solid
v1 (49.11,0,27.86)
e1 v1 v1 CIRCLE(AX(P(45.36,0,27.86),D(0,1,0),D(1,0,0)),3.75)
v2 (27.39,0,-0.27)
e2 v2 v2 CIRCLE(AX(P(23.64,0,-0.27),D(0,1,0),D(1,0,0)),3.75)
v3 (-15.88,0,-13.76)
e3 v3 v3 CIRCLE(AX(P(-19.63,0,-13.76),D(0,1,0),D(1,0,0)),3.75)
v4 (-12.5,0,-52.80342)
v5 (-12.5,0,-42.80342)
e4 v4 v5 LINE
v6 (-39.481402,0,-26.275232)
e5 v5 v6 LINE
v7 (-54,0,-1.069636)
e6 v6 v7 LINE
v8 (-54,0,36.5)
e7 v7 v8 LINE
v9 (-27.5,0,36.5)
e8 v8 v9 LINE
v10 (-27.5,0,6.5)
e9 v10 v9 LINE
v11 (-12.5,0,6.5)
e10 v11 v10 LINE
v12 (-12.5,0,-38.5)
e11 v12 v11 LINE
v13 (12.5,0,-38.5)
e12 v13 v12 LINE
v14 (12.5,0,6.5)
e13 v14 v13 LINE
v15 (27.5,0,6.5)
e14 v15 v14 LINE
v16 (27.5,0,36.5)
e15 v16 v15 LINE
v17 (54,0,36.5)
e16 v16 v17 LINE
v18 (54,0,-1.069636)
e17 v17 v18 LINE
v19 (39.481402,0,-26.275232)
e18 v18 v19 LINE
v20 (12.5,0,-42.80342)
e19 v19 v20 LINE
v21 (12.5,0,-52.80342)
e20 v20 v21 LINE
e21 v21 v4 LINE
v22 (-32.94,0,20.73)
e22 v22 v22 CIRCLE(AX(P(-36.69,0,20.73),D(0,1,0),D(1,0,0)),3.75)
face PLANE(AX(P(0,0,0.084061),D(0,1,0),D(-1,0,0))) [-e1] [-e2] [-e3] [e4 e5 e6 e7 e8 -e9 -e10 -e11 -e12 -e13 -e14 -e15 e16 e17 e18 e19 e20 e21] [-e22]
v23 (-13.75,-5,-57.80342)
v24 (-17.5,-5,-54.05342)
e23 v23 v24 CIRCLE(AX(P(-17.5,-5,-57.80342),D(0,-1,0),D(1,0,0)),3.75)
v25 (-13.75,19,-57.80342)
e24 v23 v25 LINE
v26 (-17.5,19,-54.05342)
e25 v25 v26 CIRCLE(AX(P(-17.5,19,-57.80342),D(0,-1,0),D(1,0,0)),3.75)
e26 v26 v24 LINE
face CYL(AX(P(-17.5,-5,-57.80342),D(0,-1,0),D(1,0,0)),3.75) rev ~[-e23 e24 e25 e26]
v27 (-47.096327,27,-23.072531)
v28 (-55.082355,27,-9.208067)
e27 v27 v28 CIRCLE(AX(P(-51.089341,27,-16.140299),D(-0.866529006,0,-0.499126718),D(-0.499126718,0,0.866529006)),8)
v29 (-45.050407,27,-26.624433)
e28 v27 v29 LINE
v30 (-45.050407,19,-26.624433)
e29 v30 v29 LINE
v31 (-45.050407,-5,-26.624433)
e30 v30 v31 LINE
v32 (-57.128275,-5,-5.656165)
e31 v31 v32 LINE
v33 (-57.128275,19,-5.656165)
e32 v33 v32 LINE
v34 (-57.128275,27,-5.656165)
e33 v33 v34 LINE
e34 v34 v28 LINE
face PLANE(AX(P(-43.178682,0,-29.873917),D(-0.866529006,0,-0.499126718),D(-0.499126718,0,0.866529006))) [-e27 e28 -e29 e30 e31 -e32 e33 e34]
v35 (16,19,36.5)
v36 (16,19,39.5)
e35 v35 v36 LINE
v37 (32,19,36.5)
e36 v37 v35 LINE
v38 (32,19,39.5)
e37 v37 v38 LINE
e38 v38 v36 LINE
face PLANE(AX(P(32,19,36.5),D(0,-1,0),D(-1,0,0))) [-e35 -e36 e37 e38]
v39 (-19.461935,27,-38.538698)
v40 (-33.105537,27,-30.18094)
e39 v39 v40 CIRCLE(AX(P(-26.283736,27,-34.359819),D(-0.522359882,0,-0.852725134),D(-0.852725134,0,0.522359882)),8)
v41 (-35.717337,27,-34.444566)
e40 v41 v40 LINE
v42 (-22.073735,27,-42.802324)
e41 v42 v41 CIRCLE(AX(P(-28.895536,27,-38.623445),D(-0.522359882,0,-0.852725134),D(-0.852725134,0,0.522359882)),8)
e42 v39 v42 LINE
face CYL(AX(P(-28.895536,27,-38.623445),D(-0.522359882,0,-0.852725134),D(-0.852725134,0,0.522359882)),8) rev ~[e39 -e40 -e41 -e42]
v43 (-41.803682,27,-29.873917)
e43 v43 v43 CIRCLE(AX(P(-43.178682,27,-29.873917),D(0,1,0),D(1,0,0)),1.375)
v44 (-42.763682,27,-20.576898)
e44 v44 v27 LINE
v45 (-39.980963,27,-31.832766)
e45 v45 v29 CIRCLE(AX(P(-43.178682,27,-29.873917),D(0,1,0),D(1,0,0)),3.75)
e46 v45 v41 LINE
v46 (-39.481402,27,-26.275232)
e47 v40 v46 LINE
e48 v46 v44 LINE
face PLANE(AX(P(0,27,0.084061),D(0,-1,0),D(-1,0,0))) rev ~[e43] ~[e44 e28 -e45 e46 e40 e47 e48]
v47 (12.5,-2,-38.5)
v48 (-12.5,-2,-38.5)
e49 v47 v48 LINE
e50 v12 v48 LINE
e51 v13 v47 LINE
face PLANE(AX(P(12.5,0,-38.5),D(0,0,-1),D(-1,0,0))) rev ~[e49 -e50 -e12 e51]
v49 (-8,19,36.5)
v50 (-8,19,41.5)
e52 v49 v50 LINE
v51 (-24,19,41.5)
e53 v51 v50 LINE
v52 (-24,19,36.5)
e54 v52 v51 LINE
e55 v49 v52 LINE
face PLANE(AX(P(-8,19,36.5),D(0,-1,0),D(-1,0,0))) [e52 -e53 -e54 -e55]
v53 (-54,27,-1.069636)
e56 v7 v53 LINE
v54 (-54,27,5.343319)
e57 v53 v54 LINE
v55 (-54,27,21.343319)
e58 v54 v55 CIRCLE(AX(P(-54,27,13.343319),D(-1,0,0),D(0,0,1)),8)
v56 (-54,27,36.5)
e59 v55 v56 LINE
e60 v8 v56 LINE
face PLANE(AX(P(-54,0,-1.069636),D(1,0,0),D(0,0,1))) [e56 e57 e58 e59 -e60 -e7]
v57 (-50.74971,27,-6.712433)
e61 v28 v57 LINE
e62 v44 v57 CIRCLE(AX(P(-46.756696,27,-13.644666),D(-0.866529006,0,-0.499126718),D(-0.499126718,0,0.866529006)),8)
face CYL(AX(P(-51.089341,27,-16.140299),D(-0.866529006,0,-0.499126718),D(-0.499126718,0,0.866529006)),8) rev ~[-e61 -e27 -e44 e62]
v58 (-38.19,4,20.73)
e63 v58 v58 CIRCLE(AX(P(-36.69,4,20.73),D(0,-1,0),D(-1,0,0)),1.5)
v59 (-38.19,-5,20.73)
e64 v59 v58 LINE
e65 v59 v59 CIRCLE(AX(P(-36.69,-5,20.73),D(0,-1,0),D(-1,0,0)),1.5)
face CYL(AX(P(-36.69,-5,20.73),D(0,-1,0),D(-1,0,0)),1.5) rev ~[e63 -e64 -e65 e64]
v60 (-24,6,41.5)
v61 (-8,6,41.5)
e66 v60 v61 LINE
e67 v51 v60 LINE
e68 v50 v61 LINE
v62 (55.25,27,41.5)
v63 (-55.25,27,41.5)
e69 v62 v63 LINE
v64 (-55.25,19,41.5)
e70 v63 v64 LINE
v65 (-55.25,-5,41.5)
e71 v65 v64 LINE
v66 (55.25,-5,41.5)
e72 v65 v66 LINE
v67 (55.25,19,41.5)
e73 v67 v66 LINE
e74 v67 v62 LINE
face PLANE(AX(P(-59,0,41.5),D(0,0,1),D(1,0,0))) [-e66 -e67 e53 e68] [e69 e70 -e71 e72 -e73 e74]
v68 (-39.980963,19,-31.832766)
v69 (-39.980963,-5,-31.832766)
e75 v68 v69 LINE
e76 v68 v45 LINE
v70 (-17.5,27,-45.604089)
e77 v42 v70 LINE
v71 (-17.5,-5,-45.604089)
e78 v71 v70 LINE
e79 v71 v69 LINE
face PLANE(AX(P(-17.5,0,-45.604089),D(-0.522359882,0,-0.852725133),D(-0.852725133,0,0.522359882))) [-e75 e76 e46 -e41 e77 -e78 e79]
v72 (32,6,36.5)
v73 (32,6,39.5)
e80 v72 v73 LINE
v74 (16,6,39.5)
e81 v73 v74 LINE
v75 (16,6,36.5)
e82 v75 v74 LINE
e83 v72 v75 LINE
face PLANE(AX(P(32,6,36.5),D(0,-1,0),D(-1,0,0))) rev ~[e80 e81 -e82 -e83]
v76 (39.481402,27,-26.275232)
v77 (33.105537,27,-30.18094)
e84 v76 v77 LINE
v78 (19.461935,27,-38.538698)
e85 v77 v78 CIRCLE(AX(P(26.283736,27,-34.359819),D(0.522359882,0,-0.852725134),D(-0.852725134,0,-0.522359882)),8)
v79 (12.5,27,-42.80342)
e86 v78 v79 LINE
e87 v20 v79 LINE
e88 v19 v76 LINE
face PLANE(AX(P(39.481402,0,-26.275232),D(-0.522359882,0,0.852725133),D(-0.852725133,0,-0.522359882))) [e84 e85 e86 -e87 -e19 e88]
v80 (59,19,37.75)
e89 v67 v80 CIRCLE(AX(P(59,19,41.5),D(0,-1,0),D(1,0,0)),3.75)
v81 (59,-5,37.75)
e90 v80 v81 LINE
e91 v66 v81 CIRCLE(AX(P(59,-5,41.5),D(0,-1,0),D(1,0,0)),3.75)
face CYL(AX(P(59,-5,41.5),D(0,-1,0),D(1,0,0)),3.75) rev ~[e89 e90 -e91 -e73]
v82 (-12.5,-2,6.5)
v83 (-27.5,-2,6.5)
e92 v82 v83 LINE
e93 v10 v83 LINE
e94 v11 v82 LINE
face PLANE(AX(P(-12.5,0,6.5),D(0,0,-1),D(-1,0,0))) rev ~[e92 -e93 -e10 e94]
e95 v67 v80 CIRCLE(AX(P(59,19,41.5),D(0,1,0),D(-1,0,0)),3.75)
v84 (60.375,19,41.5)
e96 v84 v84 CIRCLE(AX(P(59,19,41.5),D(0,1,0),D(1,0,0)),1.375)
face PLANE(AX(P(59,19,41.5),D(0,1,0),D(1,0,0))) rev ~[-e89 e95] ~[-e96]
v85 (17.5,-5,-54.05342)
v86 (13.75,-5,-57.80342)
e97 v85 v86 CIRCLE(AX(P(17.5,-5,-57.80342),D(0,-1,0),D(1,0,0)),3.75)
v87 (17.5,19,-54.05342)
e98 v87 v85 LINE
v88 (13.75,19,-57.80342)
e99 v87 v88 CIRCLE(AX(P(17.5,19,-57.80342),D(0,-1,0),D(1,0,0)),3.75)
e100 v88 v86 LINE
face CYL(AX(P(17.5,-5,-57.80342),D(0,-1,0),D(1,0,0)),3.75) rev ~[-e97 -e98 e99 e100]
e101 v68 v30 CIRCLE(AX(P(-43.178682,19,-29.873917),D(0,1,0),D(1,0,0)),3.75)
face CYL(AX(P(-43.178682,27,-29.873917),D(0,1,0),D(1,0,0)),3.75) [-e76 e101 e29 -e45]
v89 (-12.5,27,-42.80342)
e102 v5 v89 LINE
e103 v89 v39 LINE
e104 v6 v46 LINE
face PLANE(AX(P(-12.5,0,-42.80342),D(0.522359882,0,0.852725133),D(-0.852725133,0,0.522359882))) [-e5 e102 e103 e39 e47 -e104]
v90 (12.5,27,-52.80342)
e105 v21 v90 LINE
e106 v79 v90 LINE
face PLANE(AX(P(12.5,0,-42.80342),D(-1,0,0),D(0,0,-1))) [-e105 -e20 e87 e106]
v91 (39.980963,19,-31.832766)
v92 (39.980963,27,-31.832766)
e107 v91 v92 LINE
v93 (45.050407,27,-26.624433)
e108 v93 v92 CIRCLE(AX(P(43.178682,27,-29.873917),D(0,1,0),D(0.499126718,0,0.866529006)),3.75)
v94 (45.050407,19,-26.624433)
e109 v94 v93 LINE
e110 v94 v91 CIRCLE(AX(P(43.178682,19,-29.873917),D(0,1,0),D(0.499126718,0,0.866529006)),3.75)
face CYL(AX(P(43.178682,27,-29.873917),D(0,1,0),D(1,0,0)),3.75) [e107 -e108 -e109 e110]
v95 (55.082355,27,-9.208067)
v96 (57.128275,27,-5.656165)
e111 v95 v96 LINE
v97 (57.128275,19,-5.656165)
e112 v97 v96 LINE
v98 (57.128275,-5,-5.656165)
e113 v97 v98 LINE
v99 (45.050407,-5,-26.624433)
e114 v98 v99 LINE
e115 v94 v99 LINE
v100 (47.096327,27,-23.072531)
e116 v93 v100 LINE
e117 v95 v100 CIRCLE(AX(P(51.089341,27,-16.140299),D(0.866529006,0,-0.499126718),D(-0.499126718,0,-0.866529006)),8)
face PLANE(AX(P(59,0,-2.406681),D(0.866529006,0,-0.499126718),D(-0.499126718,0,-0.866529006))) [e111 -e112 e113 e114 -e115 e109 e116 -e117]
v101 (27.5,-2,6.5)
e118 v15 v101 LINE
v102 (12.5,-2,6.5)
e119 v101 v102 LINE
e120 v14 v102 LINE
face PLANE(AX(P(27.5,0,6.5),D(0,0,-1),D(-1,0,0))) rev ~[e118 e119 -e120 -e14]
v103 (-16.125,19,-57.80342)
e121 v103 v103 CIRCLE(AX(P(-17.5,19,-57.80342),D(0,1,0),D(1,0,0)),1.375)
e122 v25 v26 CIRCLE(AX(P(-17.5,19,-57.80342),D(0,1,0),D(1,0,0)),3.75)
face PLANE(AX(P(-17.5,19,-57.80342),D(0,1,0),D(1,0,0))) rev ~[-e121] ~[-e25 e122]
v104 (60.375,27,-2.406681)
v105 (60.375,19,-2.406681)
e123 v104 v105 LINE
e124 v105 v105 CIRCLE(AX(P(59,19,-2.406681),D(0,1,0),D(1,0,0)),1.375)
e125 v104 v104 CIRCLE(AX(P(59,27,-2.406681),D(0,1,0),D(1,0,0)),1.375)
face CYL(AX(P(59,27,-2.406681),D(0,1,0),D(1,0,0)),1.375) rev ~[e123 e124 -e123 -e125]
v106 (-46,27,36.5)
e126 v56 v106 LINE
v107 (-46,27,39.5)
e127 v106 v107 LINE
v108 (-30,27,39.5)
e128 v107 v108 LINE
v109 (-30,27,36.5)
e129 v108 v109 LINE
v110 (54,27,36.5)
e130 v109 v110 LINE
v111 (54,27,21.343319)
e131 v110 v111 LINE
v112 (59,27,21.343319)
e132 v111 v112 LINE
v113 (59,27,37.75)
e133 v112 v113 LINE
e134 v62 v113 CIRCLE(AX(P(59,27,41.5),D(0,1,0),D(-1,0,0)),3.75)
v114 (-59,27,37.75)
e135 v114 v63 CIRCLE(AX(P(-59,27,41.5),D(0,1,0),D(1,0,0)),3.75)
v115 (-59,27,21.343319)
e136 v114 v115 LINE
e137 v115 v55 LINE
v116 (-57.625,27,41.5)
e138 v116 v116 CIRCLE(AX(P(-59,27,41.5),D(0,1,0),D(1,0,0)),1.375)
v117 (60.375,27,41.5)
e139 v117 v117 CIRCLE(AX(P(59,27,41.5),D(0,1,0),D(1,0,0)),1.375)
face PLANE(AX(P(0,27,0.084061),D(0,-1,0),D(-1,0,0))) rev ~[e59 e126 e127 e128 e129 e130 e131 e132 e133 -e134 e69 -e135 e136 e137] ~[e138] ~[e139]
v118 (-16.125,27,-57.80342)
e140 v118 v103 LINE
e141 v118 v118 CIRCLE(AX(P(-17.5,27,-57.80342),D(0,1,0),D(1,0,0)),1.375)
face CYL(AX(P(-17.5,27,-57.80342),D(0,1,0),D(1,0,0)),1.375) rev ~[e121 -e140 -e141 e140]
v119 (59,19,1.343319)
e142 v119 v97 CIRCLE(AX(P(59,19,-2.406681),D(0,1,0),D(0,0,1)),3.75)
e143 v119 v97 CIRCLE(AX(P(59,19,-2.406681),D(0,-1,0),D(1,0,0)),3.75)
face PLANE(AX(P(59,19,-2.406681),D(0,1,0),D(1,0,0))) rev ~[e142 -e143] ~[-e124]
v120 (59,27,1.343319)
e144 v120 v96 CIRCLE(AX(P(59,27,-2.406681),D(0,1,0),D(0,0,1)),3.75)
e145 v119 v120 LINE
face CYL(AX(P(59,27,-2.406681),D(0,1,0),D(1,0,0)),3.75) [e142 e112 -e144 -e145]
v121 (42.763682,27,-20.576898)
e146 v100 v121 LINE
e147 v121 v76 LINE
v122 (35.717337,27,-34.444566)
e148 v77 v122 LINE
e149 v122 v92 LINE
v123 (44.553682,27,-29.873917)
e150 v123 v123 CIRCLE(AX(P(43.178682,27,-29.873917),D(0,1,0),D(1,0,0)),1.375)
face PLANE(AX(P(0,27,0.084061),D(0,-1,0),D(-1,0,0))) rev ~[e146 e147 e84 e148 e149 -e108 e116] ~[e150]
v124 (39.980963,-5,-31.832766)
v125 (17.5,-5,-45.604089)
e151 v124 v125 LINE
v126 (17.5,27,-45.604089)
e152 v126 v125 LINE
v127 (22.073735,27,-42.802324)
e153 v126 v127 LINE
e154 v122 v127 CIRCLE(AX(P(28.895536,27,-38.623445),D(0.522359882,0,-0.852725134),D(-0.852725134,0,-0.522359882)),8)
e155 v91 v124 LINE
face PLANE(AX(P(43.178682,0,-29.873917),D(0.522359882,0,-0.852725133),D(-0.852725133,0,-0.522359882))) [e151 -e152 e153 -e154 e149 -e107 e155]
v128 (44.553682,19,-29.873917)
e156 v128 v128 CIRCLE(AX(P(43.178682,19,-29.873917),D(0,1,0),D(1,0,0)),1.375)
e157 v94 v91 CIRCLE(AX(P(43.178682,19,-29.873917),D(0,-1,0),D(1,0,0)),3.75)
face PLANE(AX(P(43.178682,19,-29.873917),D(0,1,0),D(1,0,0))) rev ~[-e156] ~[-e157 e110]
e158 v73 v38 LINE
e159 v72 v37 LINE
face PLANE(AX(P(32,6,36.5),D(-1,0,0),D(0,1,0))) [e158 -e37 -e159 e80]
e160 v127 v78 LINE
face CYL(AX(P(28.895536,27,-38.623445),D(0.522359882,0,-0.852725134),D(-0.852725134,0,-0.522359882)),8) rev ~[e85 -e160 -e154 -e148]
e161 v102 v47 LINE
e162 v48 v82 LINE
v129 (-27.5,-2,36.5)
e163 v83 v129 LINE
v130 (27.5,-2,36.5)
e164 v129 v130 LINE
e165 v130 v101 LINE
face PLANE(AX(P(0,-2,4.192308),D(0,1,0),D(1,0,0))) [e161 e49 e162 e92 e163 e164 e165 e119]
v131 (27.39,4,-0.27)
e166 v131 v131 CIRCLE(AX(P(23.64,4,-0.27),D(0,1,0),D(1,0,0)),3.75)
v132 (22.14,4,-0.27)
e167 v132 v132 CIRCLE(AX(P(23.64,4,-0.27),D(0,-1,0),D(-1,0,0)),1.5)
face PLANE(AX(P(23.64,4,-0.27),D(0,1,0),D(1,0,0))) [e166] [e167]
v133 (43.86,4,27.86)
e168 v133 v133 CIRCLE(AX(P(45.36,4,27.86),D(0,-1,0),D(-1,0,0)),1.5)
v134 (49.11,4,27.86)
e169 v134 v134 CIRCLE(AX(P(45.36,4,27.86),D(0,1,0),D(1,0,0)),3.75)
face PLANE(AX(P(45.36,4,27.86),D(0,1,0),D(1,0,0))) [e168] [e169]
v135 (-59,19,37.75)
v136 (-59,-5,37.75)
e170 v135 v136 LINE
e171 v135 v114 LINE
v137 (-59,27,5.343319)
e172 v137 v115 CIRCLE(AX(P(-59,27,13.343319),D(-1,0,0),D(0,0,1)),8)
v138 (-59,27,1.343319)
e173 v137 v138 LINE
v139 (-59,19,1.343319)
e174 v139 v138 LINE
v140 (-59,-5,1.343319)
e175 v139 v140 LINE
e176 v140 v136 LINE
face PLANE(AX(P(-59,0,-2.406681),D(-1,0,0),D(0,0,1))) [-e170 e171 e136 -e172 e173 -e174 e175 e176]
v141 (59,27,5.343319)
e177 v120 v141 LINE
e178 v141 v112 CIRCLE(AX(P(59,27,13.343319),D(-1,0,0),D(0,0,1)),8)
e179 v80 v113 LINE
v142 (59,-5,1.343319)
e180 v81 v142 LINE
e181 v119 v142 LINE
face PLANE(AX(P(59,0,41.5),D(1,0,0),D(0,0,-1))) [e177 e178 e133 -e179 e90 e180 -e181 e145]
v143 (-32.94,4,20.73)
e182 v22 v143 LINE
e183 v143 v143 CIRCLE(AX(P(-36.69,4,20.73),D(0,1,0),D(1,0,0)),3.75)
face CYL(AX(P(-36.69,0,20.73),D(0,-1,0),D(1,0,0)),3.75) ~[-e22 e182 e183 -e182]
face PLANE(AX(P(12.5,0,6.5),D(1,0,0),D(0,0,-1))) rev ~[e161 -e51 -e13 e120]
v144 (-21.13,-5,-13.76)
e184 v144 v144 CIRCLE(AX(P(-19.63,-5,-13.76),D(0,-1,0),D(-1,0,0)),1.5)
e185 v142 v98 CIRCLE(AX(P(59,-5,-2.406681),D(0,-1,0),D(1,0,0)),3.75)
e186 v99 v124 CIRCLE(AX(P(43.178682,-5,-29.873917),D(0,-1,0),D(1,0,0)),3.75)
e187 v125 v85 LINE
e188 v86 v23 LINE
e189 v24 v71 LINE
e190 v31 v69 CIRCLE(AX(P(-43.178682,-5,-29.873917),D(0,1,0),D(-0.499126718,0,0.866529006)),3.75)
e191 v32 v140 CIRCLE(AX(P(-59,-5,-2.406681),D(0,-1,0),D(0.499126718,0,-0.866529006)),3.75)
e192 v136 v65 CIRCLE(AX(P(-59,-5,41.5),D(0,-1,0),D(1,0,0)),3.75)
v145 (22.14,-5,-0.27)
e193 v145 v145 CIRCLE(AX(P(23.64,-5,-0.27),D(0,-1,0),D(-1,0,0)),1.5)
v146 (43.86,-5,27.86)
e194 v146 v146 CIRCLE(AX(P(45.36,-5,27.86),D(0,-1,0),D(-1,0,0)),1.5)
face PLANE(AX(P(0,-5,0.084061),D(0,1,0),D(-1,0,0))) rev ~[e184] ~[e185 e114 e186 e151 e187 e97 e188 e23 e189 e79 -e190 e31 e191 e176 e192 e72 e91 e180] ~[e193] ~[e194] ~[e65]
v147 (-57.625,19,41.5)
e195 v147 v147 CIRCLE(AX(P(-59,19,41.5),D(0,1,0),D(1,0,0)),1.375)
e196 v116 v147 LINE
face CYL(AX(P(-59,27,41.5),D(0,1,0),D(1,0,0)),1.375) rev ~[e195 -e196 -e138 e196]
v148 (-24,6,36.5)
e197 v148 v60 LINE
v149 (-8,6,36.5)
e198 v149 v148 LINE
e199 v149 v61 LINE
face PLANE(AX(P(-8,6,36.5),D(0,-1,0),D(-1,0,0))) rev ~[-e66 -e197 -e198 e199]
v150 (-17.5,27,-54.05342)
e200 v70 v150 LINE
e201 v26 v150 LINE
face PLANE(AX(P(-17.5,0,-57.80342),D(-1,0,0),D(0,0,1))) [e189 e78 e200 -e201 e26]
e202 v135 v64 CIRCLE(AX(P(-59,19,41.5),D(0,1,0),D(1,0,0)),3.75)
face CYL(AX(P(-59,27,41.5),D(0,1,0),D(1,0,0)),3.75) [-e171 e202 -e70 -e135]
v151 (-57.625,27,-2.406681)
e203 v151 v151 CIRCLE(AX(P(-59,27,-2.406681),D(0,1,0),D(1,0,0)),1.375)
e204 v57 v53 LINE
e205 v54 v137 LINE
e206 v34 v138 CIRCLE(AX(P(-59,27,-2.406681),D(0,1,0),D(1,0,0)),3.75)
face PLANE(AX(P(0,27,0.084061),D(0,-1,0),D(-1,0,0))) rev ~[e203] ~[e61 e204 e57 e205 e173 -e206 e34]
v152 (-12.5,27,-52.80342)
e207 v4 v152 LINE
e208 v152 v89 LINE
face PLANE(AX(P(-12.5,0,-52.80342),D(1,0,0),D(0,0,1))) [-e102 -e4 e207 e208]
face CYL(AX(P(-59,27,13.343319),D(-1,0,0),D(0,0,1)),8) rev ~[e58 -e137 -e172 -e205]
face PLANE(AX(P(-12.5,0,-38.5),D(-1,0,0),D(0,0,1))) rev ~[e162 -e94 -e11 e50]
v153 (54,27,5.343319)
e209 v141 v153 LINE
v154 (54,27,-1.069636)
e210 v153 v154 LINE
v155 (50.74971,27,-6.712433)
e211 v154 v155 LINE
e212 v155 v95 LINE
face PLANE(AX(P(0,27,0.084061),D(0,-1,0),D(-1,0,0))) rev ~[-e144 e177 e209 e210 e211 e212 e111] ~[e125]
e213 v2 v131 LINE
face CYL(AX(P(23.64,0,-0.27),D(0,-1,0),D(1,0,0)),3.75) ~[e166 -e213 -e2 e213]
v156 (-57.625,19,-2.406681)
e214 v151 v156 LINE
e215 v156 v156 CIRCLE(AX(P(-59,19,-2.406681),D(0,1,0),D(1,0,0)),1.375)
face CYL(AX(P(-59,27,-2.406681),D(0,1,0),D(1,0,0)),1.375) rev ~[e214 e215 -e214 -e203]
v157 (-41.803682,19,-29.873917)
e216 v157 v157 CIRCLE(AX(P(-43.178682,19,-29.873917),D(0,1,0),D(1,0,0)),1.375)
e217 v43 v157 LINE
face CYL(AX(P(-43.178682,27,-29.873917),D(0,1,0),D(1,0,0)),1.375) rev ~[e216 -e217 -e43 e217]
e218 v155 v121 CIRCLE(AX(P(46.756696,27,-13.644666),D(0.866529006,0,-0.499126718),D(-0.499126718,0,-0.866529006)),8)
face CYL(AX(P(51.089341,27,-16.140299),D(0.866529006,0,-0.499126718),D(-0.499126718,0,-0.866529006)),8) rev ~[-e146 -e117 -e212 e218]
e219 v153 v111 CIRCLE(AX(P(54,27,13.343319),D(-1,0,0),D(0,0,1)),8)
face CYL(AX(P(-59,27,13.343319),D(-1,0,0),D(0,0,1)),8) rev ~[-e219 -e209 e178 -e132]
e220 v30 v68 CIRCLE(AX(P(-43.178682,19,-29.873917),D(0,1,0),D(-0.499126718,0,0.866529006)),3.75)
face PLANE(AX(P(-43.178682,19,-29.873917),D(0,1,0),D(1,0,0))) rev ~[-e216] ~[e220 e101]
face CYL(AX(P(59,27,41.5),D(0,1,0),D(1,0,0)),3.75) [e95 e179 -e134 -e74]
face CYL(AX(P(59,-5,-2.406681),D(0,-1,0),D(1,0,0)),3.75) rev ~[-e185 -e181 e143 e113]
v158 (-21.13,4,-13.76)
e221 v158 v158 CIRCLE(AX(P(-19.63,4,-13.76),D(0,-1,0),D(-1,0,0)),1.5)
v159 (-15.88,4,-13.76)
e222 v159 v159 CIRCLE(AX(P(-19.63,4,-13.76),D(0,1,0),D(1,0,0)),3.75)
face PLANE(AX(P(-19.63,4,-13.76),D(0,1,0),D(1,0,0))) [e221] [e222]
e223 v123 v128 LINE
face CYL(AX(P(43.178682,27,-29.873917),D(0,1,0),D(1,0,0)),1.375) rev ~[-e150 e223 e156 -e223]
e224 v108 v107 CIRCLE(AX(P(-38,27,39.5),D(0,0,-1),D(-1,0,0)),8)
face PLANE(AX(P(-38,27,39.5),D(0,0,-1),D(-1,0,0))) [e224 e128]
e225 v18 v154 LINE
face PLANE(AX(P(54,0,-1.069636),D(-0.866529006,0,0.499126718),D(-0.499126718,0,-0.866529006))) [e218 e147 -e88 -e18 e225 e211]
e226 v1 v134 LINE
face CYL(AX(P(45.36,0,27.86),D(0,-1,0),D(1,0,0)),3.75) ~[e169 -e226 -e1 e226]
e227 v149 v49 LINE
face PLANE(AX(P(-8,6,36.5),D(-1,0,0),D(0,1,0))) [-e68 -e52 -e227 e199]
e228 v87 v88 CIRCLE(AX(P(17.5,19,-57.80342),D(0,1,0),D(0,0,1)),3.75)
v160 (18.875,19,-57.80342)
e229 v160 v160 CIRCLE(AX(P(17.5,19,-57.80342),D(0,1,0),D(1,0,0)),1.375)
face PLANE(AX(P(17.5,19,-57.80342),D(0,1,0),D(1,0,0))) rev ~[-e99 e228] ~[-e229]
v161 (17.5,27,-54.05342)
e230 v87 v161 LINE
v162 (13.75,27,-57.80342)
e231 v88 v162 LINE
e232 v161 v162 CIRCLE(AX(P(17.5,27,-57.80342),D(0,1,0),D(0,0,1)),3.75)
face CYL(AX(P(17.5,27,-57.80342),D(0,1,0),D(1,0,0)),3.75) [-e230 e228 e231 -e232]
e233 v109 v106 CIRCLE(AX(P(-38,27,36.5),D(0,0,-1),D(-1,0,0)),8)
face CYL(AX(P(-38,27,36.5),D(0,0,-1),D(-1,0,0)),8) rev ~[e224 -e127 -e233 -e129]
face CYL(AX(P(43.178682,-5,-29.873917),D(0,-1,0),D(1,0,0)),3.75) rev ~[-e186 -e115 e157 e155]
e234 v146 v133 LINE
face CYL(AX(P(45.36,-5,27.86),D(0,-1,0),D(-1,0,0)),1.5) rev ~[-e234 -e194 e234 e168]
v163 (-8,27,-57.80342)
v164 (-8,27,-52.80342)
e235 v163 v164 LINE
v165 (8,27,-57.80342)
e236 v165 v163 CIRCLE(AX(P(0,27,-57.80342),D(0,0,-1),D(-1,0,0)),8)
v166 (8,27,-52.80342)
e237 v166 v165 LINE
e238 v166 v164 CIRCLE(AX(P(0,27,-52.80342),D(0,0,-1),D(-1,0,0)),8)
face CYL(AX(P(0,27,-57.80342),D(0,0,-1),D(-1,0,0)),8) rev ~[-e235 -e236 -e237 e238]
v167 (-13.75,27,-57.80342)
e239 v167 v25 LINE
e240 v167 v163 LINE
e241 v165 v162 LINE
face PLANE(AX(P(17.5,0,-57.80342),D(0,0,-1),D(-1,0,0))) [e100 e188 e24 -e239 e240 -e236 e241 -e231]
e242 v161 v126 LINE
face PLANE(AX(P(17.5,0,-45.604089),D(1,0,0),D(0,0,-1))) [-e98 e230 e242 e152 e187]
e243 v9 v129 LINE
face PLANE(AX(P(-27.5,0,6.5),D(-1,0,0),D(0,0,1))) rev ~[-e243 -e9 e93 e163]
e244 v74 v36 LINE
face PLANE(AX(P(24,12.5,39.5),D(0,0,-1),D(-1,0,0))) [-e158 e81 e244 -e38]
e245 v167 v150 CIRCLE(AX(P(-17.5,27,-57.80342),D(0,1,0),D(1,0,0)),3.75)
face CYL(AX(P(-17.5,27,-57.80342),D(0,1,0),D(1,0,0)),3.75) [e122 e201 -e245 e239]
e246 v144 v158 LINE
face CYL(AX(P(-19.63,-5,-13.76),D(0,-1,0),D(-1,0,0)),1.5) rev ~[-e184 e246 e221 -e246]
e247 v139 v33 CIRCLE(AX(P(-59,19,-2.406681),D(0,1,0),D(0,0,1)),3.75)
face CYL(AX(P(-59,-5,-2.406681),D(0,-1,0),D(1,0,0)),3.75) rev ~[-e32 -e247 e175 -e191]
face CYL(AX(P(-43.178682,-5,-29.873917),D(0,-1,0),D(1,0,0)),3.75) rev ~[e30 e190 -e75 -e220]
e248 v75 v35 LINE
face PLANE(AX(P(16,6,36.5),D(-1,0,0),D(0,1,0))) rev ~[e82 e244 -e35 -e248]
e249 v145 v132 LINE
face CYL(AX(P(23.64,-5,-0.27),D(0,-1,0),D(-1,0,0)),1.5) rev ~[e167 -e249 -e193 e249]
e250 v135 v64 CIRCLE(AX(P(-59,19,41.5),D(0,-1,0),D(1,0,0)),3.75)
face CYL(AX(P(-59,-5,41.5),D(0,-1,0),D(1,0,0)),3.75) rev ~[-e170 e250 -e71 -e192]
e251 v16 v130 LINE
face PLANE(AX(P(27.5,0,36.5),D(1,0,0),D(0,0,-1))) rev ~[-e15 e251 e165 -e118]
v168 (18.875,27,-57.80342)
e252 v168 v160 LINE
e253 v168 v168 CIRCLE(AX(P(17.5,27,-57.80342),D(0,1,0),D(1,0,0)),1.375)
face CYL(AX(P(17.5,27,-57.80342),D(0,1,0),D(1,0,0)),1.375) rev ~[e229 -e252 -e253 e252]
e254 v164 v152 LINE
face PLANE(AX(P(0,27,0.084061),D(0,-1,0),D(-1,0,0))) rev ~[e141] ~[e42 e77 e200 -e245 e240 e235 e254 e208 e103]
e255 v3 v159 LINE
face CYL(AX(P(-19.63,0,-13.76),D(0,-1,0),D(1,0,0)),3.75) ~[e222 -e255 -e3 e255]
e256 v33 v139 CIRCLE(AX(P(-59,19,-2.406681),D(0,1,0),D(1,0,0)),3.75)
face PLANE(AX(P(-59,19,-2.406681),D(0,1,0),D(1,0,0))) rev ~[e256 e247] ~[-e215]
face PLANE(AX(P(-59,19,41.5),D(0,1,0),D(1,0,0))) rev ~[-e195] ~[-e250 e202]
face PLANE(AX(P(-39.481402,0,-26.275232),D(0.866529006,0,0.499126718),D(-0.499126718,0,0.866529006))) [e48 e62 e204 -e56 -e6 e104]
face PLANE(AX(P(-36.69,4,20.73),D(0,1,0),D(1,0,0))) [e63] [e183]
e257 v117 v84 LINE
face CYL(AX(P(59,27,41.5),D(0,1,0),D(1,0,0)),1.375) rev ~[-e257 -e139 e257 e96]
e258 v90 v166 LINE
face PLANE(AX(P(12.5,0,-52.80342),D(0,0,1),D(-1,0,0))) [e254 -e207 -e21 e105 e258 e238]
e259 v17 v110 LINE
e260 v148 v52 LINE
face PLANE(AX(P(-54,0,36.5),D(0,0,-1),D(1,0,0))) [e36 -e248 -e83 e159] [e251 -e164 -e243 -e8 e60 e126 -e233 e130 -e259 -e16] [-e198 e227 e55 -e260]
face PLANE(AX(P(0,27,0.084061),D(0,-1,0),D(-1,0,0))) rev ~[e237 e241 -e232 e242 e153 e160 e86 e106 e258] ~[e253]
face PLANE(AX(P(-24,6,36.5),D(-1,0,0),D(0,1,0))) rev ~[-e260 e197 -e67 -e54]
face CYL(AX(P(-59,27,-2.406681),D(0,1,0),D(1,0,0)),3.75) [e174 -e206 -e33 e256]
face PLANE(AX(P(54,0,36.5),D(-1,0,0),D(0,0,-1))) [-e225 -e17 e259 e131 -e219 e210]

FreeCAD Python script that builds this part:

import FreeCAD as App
import Part
import Sketcher
Q = App.Units.Quantity


def add_polygon(sketch, points):
    """Adds a closed chain of lines whose ends are joined by coincident constraints."""
    first, n = sketch.GeometryCount, len(points)
    for a, b in zip(points, points[1:] + points[:1]):
        sketch.addGeometry(Part.LineSegment(App.Vector(*a, 0), App.Vector(*b, 0)), False)
    for i in range(n):
        sketch.addConstraint(Sketcher.Constraint("Coincident", first + i, 2, first + (i + 1) % n, 1))

doc = App.newDocument("Part")
body = doc.addObject("PartDesign::Body", "Body")

# Sketch on XZ plane
sketch1 = body.newObject("Sketcher::SketchObject", "Sketch")
sketch1.AttachmentSupport = (doc.getObject("XZ_Plane"), [""])
sketch1.MapMode = "FlatFace"
add_polygon(sketch1, [(-18, -46), (-43, -30), (-59, -2), (-59, 42), (59, 42), (59, -2), (43, -30), (18, -46), (18, -58), (-18, -58)])  # lines 0-9
add_polygon(sketch1, [(39, -26), (54, -1), (54, 36), (-54, 36), (-54, -1), (-39, -26), (-12, -43), (-12, -53), (12, -53), (12, -43)])  # lines 10-19
sketch1.addConstraint([
    Sketcher.Constraint("Vertical", 2),
    Sketcher.Constraint("Horizontal", 3),
    Sketcher.Constraint("Vertical", 4),
    Sketcher.Constraint("Vertical", 7),
    Sketcher.Constraint("Horizontal", 8),
    Sketcher.Constraint("Vertical", 9),
    Sketcher.Constraint("Vertical", 11),
    Sketcher.Constraint("Horizontal", 12),
    Sketcher.Constraint("Vertical", 13),
    Sketcher.Constraint("Vertical", 16),
    Sketcher.Constraint("Horizontal", 17),
    Sketcher.Constraint("Vertical", 18),
    Sketcher.Constraint("Symmetric", 1, 2, 4, 2, -2),
    Sketcher.Constraint("Symmetric", 0, 2, 5, 2, -2),
    Sketcher.Constraint("Symmetric", 6, 2, 9, 2, -2),
    Sketcher.Constraint("Symmetric", 10, 2, 13, 2, -2),
    Sketcher.Constraint("Symmetric", 15, 2, 18, 2, -2),
    Sketcher.Constraint("Symmetric", 14, 2, 19, 2, -2),
    Sketcher.Constraint("Parallel", 5, 10),
    Sketcher.Constraint("Parallel", 0, 15),
    Sketcher.Constraint("DistanceX", 3, 1, 3, 2, Q("118 mm")),
    Sketcher.Constraint("DistanceX", 8, 2, 8, 1, Q("35 mm")),
    Sketcher.Constraint("DistanceX", 12, 2, 12, 1, Q("108 mm")),
    Sketcher.Constraint("DistanceX", 17, 1, 17, 2, Q("25 mm")),
    Sketcher.Constraint("DistanceY", 16, 2, 16, 1, Q("10 mm")),
    Sketcher.Constraint("DistanceY", 11, 2, 3, 2, Q("5 mm")),
    Sketcher.Constraint("DistanceY", 8, 2, 15, 2, Q("15 mm")),
    Sketcher.Constraint("DistanceY", -1, 1, 2, 2, Q("41.5 mm")),
    Sketcher.Constraint("Distance", 1, Q("31.697999 mm")),
    Sketcher.Constraint("Distance", 10, Q("29.088 mm")),
    Sketcher.Constraint("DistanceY", 2, 1, 2, 2, Q("43.906681 mm")),
    Sketcher.Constraint("DistanceY", 7, 2, 7, 1, Q("12.199331 mm")),
    Sketcher.Constraint("Distance", 0, Q("30.113668 mm")),
    Sketcher.Constraint("DistanceY", 11, 1, 11, 2, Q("37.569636 mm")),
])
pad1 = body.newObject("PartDesign::Pad", "Pad")
pad1.Profile = sketch1
pad1.Length = 27
pad1.Reversed = True

# Sketch on XZ plane
sketch2 = body.newObject("Sketcher::SketchObject", "Sketch001")
sketch2.AttachmentSupport = (doc.getObject("XZ_Plane"), [""])
sketch2.MapMode = "FlatFace"
add_polygon(sketch2, [(-18, -58), (18, -58), (18, -46), (43, -30), (59, -2), (59, 42), (-59, 42), (-59, -2), (-43, -30), (-18, -46)])  # lines 0-9
sketch2.addConstraint([
    Sketcher.Constraint("Horizontal", 0),
    Sketcher.Constraint("Vertical", 1),
    Sketcher.Constraint("Vertical", 4),
    Sketcher.Constraint("Horizontal", 5),
    Sketcher.Constraint("Vertical", 6),
    Sketcher.Constraint("Vertical", 9),
    Sketcher.Constraint("Symmetric", 3, 2, 6, 2, -2),
    Sketcher.Constraint("Symmetric", 2, 2, 7, 2, -2),
    Sketcher.Constraint("Symmetric", 1, 2, 8, 2, -2),
    Sketcher.Constraint("DistanceX", 0, 1, 0, 2, Q("35 mm")),
    Sketcher.Constraint("DistanceX", 5, 2, 5, 1, Q("118 mm")),
    Sketcher.Constraint("DistanceY", -1, 1, 4, 2, Q("41.5 mm")),
    Sketcher.Constraint("Distance", 3, Q("31.697999 mm")),
    Sketcher.Constraint("DistanceY", 1, 1, 1, 2, Q("12.199331 mm")),
    Sketcher.Constraint("DistanceY", 4, 1, 4, 2, Q("43.906681 mm")),
    Sketcher.Constraint("Distance", 2, Q("30.113668 mm")),
    Sketcher.Constraint("DistanceY", 0, 2, -1, 1, Q("57.80342 mm")),
])
pad2 = body.newObject("PartDesign::Pad", "Pad001")
pad2.Profile = sketch2
pad2.Length = 5

# Sketch on XZ plane
sketch3 = body.newObject("Sketcher::SketchObject", "Sketch002")
sketch3.AttachmentSupport = (doc.getObject("XZ_Plane"), [""])
sketch3.MapMode = "FlatFace"
sketch3.addGeometry([
    Part.Circle(App.Vector(-19.6, -13.8, 0), App.Vector(0, 0, 1), 3.8),
    Part.Circle(App.Vector(-36.7, 20.7, 0), App.Vector(0, 0, 1), 3.8),
    Part.Circle(App.Vector(23.6, -0.3, 0), App.Vector(0, 0, 1), 3.8),
    Part.Circle(App.Vector(45.4, 27.9, 0), App.Vector(0, 0, 1), 3.8),
], False)
sketch3.addConstraint([
    Sketcher.Constraint("Equal", 0, 1),
    Sketcher.Constraint("Equal", 1, 2),
    Sketcher.Constraint("Equal", 2, 3),
    Sketcher.Constraint("Diameter", 0, Q("7.5 mm")),
    Sketcher.Constraint("DistanceY", 2, 3, 1, 3, Q("21 mm")),
    Sketcher.Constraint("DistanceX", 0, 3, -1, 1, Q("19.63 mm")),
    Sketcher.Constraint("DistanceY", 0, 3, -1, 1, Q("13.76 mm")),
    Sketcher.Constraint("DistanceX", 1, 3, -1, 1, Q("36.69 mm")),
    Sketcher.Constraint("DistanceY", -1, 1, 1, 3, Q("20.73 mm")),
    Sketcher.Constraint("DistanceX", -1, 1, 2, 3, Q("23.64 mm")),
    Sketcher.Constraint("DistanceX", -1, 1, 3, 3, Q("45.36 mm")),
    Sketcher.Constraint("DistanceY", -1, 1, 3, 3, Q("27.86 mm")),
])
pad3 = body.newObject("PartDesign::Pad", "Pad002")
pad3.Profile = sketch3
pad3.Length = 4
pad3.Reversed = True

# Sketch on XZ plane
sketch4 = body.newObject("Sketcher::SketchObject", "Sketch003")
sketch4.AttachmentSupport = (doc.getObject("XZ_Plane"), [""])
sketch4.MapMode = "FlatFace"
sketch4.AttachmentOffset = App.Placement(App.Vector(0, 0, 5), App.Rotation())
sketch4.addGeometry([
    Part.Circle(App.Vector(45.4, 27.9, 0), App.Vector(0, 0, 1), 1.5),
    Part.Circle(App.Vector(23.6, -0.3, 0), App.Vector(0, 0, 1), 1.5),
    Part.Circle(App.Vector(-19.6, -13.8, 0), App.Vector(0, 0, 1), 1.5),
    Part.Circle(App.Vector(-36.7, 20.7, 0), App.Vector(0, 0, 1), 1.5),
], False)
sketch4.addConstraint([
    Sketcher.Constraint("Equal", 0, 1),
    Sketcher.Constraint("Equal", 1, 2),
    Sketcher.Constraint("Equal", 2, 3),
    Sketcher.Constraint("Diameter", 0, Q("3 mm")),
    Sketcher.Constraint("DistanceY", 1, 3, 3, 3, Q("21 mm")),
    Sketcher.Constraint("DistanceX", -1, 1, 0, 3, Q("45.36 mm")),
    Sketcher.Constraint("DistanceY", -1, 1, 0, 3, Q("27.86 mm")),
    Sketcher.Constraint("DistanceX", -1, 1, 1, 3, Q("23.64 mm")),
    Sketcher.Constraint("DistanceY", 1, 3, -1, 1, Q("0.27 mm")),
    Sketcher.Constraint("DistanceX", 2, 3, -1, 1, Q("19.63 mm")),
    Sketcher.Constraint("DistanceY", 2, 3, -1, 1, Q("13.76 mm")),
    Sketcher.Constraint("DistanceX", 3, 3, -1, 1, Q("36.69 mm")),
])
pocket1 = body.newObject("PartDesign::Pocket", "Pocket")
pocket1.Profile = sketch4
pocket1.Type = "ThroughAll"

# Sketch on XZ plane
sketch5 = body.newObject("Sketcher::SketchObject", "Sketch004")
sketch5.AttachmentSupport = (doc.getObject("XZ_Plane"), [""])
sketch5.MapMode = "FlatFace"
sketch5.AttachmentOffset = App.Placement(App.Vector(0, 0, -27), App.Rotation())
sketch5.addGeometry([
    Part.Circle(App.Vector(-59, 41.5, 0), App.Vector(0, 0, 1), 3.8),  # 0
    Part.Circle(App.Vector(-59, -2.4, 0), App.Vector(0, 0, 1), 3.8),  # 1
    Part.Circle(App.Vector(-43.2, -29.9, 0), App.Vector(0, 0, 1), 3.8),  # 2
    Part.Circle(App.Vector(-17.5, -57.8, 0), App.Vector(0, 0, 1), 3.8),  # 3
    Part.Circle(App.Vector(17.5, -57.8, 0), App.Vector(0, 0, 1), 3.8),  # 4
    Part.Circle(App.Vector(43.2, -29.9, 0), App.Vector(0, 0, 1), 3.8),  # 5
    Part.Circle(App.Vector(59, -2.4, 0), App.Vector(0, 0, 1), 3.8),  # 6
    Part.Circle(App.Vector(59, 41.5, 0), App.Vector(0, 0, 1), 3.8),  # 7
], False)
sketch5.addConstraint([
    Sketcher.Constraint("Equal", 0, 1),
    Sketcher.Constraint("Equal", 1, 2),
    Sketcher.Constraint("Equal", 2, 3),
    Sketcher.Constraint("Equal", 3, 4),
    Sketcher.Constraint("Equal", 4, 5),
    Sketcher.Constraint("Equal", 5, 6),
    Sketcher.Constraint("Equal", 6, 7),
    Sketcher.Constraint("Symmetric", 3, 3, 4, 3, -2),
    Sketcher.Constraint("Symmetric", 2, 3, 5, 3, -2),
    Sketcher.Constraint("Symmetric", 1, 3, 6, 3, -2),
    Sketcher.Constraint("Symmetric", 0, 3, 7, 3, -2),
    Sketcher.Constraint("Vertical", 0, 3, 1, 3),
    Sketcher.Constraint("Diameter", 0, Q("7.5 mm")),
    Sketcher.Constraint("DistanceX", 0, 3, -1, 1, Q("59 mm")),
    Sketcher.Constraint("DistanceX", 3, 3, 4, 3, Q("35 mm")),
    Sketcher.Constraint("DistanceY", -1, 1, 0, 3, Q("41.5 mm")),
    Sketcher.Constraint("DistanceY", 1, 3, -1, 1, Q("2.406681 mm")),
    Sketcher.Constraint("DistanceX", 2, 3, -1, 1, Q("43.178682 mm")),
    Sketcher.Constraint("DistanceY", 3, 3, -1, 1, Q("57.80342 mm")),
    Sketcher.Constraint("DistanceY", 2, 3, -1, 1, Q("29.873917 mm")),
])
pad4 = body.newObject("PartDesign::Pad", "Pad003")
pad4.Profile = sketch5
pad4.Length = 8

# Sketch on XZ plane
sketch6 = body.newObject("Sketcher::SketchObject", "Sketch005")
sketch6.AttachmentSupport = (doc.getObject("XZ_Plane"), [""])
sketch6.MapMode = "FlatFace"
sketch6.AttachmentOffset = App.Placement(App.Vector(0, 0, 5), App.Rotation())
sketch6.addGeometry([
    Part.Circle(App.Vector(59, 41.5, 0), App.Vector(0, 0, 1), 3.8),  # 0
    Part.Circle(App.Vector(59, -2.4, 0), App.Vector(0, 0, 1), 3.8),  # 1
    Part.Circle(App.Vector(43.2, -29.9, 0), App.Vector(0, 0, 1), 3.8),  # 2
    Part.Circle(App.Vector(17.5, -57.8, 0), App.Vector(0, 0, 1), 3.8),  # 3
    Part.Circle(App.Vector(-17.5, -57.8, 0), App.Vector(0, 0, 1), 3.8),  # 4
    Part.Circle(App.Vector(-43.2, -29.9, 0), App.Vector(0, 0, 1), 3.8),  # 5
    Part.Circle(App.Vector(-59, -2.4, 0), App.Vector(0, 0, 1), 3.8),  # 6
    Part.Circle(App.Vector(-59, 41.5, 0), App.Vector(0, 0, 1), 3.8),  # 7
], False)
sketch6.addConstraint([
    Sketcher.Constraint("Equal", 0, 1),
    Sketcher.Constraint("Equal", 1, 2),
    Sketcher.Constraint("Equal", 2, 3),
    Sketcher.Constraint("Equal", 3, 4),
    Sketcher.Constraint("Equal", 4, 5),
    Sketcher.Constraint("Equal", 5, 6),
    Sketcher.Constraint("Equal", 6, 7),
    Sketcher.Constraint("Symmetric", 3, 3, 4, 3, -2),
    Sketcher.Constraint("Symmetric", 2, 3, 5, 3, -2),
    Sketcher.Constraint("Symmetric", 1, 3, 6, 3, -2),
    Sketcher.Constraint("Symmetric", 0, 3, 7, 3, -2),
    Sketcher.Constraint("Vertical", 0, 3, 1, 3),
    Sketcher.Constraint("Diameter", 0, Q("7.5 mm")),
    Sketcher.Constraint("DistanceX", -1, 1, 0, 3, Q("59 mm")),
    Sketcher.Constraint("DistanceX", 4, 3, 3, 3, Q("35 mm")),
    Sketcher.Constraint("DistanceY", -1, 1, 0, 3, Q("41.5 mm")),
    Sketcher.Constraint("DistanceY", 1, 3, -1, 1, Q("2.406681 mm")),
    Sketcher.Constraint("DistanceX", -1, 1, 2, 3, Q("43.178682 mm")),
    Sketcher.Constraint("DistanceY", 3, 3, -1, 1, Q("57.80342 mm")),
    Sketcher.Constraint("DistanceY", 2, 3, -1, 1, Q("29.873917 mm")),
])
pocket2 = body.newObject("PartDesign::Pocket", "Pocket001")
pocket2.Profile = sketch6
pocket2.Length = 24

# Sketch on XZ plane
sketch7 = body.newObject("Sketcher::SketchObject", "Sketch006")
sketch7.AttachmentSupport = (doc.getObject("XZ_Plane"), [""])
sketch7.MapMode = "FlatFace"
sketch7.AttachmentOffset = App.Placement(App.Vector(0, 0, -27), App.Rotation())
sketch7.addGeometry([
    Part.Circle(App.Vector(-59, 41.5, 0), App.Vector(0, 0, 1), 1.4),  # 0
    Part.Circle(App.Vector(-59, -2.4, 0), App.Vector(0, 0, 1), 1.4),  # 1
    Part.Circle(App.Vector(-17.5, -57.8, 0), App.Vector(0, 0, 1), 1.4),  # 2
    Part.Circle(App.Vector(43.2, -29.9, 0), App.Vector(0, 0, 1), 1.4),  # 3
    Part.Circle(App.Vector(17.5, -57.8, 0), App.Vector(0, 0, 1), 1.4),  # 4
    Part.Circle(App.Vector(-43.2, -29.9, 0), App.Vector(0, 0, 1), 1.4),  # 5
    Part.Circle(App.Vector(59, -2.4, 0), App.Vector(0, 0, 1), 1.4),  # 6
    Part.Circle(App.Vector(59, 41.5, 0), App.Vector(0, 0, 1), 1.4),  # 7
], False)
sketch7.addConstraint([
    Sketcher.Constraint("Equal", 0, 1),
    Sketcher.Constraint("Equal", 1, 2),
    Sketcher.Constraint("Equal", 2, 3),
    Sketcher.Constraint("Equal", 3, 4),
    Sketcher.Constraint("Equal", 4, 5),
    Sketcher.Constraint("Equal", 5, 6),
    Sketcher.Constraint("Equal", 6, 7),
    Sketcher.Constraint("Symmetric", 2, 3, 4, 3, -2),
    Sketcher.Constraint("Symmetric", 3, 3, 5, 3, -2),
    Sketcher.Constraint("Symmetric", 1, 3, 6, 3, -2),
    Sketcher.Constraint("Symmetric", 0, 3, 7, 3, -2),
    Sketcher.Constraint("Vertical", 0, 3, 1, 3),
    Sketcher.Constraint("Diameter", 0, Q("2.75 mm")),
    Sketcher.Constraint("DistanceX", 0, 3, -1, 1, Q("59 mm")),
    Sketcher.Constraint("DistanceX", 2, 3, 4, 3, Q("35 mm")),
    Sketcher.Constraint("DistanceY", -1, 1, 0, 3, Q("41.5 mm")),
    Sketcher.Constraint("DistanceY", 1, 3, -1, 1, Q("2.406681 mm")),
    Sketcher.Constraint("DistanceY", 2, 3, -1, 1, Q("57.80342 mm")),
    Sketcher.Constraint("DistanceX", -1, 1, 3, 3, Q("43.178682 mm")),
    Sketcher.Constraint("DistanceY", 3, 3, -1, 1, Q("29.873917 mm")),
])
pocket3 = body.newObject("PartDesign::Pocket", "Pocket002")
pocket3.Profile = sketch7
pocket3.Type = "ThroughAll"
pocket3.Reversed = True

# Sketch on XZ plane
sketch8 = body.newObject("Sketcher::SketchObject", "Sketch007")
sketch8.AttachmentSupport = (doc.getObject("XZ_Plane"), [""])
sketch8.MapMode = "FlatFace"
add_polygon(sketch8, [(28, 36), (28, 6), (12, 6), (12, -38), (-12, -38), (-12, 6), (-28, 6), (-28, 36)])  # lines 0-7
sketch8.addConstraint([
    Sketcher.Constraint("Vertical", 0),
    Sketcher.Constraint("Horizontal", 1),
    Sketcher.Constraint("Vertical", 2),
    Sketcher.Constraint("Horizontal", 3),
    Sketcher.Constraint("Vertical", 4),
    Sketcher.Constraint("Horizontal", 5),
    Sketcher.Constraint("Vertical", 6),
    Sketcher.Constraint("Horizontal", 7),
    Sketcher.Constraint("Symmetric", 1, 2, 4, 2, -2),
    Sketcher.Constraint("Equal", 1, 5),
    Sketcher.Constraint("DistanceX", 1, 2, 1, 1, Q("15 mm")),
    Sketcher.Constraint("DistanceX", 3, 2, 3, 1, Q("25 mm")),
    Sketcher.Constraint("DistanceY", 0, 2, 0, 1, Q("30 mm")),
    Sketcher.Constraint("DistanceY", 2, 2, 2, 1, Q("45 mm")),
    Sketcher.Constraint("DistanceY", -1, 1, 0, 2, Q("6.5 mm")),
])
pocket4 = body.newObject("PartDesign::Pocket", "Pocket003")
pocket4.Profile = sketch8
pocket4.Length = 2
pocket4.Reversed = True

# Sketch on YZ plane
sketch9 = body.newObject("Sketcher::SketchObject", "Sketch008")
sketch9.AttachmentSupport = (doc.getObject("YZ_Plane"), [""])
sketch9.MapMode = "FlatFace"
sketch9.AttachmentOffset = App.Placement(App.Vector(0, 0, -59), App.Rotation())
sketch9.addGeometry(Part.Circle(App.Vector(27, 13, 0), App.Vector(0, 0, 1), 8), False)
sketch9.addConstraint([
    Sketcher.Constraint("Diameter", 0, Q("16 mm")),
    Sketcher.Constraint("DistanceX", -1, 1, 0, 3, Q("27 mm")),
    Sketcher.Constraint("DistanceY", -1, 1, 0, 3, Q("13.343319 mm")),
])
pocket5 = body.newObject("PartDesign::Pocket", "Pocket004")
pocket5.Profile = sketch9
pocket5.Type = "ThroughAll"
pocket5.Reversed = True

# Sketch on an angled plane
sketch10 = body.newObject("Sketcher::SketchObject", "Sketch009")
sketch10.Placement = App.Placement(App.Vector(-45.342387, 0, -26.117529), App.Rotation(App.Vector(-0.499126718, 0, 0.866529006), App.Vector(0, 0.999999999, 0), App.Vector(-0.866529006, 0, -0.499126718), "ZXY"))
sketch10.addGeometry(Part.Circle(App.Vector(12, 27, 0), App.Vector(0, 0, 1), 8), False)
sketch10.addConstraint([
    Sketcher.Constraint("Diameter", 0, Q("16 mm")),
    Sketcher.Constraint("DistanceY", -1, 1, 0, 3, Q("27 mm")),
    Sketcher.Constraint("DistanceX", -1, 1, 0, 3, Q("11.514018 mm")),
])
pocket6 = body.newObject("PartDesign::Pocket", "Pocket005")
pocket6.Profile = sketch10
pocket6.Type = "UpToFirst"

# Sketch on XY plane
sketch11 = body.newObject("Sketcher::SketchObject", "Sketch010")
sketch11.AttachmentSupport = (doc.getObject("XY_Plane"), [""])
sketch11.MapMode = "FlatFace"
sketch11.AttachmentOffset = App.Placement(App.Vector(0, 0, -57.80342), App.Rotation())
sketch11.addGeometry(Part.Circle(App.Vector(0, 27, 0), App.Vector(0, 0, 1), 8), False)
sketch11.addConstraint([
    Sketcher.Constraint("PointOnObject", 0, 3, -2),
    Sketcher.Constraint("Diameter", 0, Q("16 mm")),
    Sketcher.Constraint("DistanceY", -1, 1, 0, 3, Q("27 mm")),
])
pocket7 = body.newObject("PartDesign::Pocket", "Pocket006")
pocket7.Profile = sketch11
pocket7.Type = "UpToFirst"
pocket7.Reversed = True

# Sketch on an angled plane
sketch12 = body.newObject("Sketcher::SketchObject", "Sketch011")
sketch12.Placement = App.Placement(App.Vector(45.342387, 0, -26.117529), App.Rotation(App.Vector(-0.499126718, 0, -0.866529006), App.Vector(0, 0.999999999, 0), App.Vector(0.866529006, 0, -0.499126718), "ZXY"))
sketch12.addGeometry(Part.Circle(App.Vector(-12, 27, 0), App.Vector(0, 0, 1), 8), False)
sketch12.addConstraint([
    Sketcher.Constraint("Diameter", 0, Q("16 mm")),
    Sketcher.Constraint("DistanceY", -1, 1, 0, 3, Q("27 mm")),
    Sketcher.Constraint("DistanceX", 0, 3, -1, 1, Q("11.514018 mm")),
])
pocket8 = body.newObject("PartDesign::Pocket", "Pocket007")
pocket8.Profile = sketch12
pocket8.Type = "UpToFirst"

# Sketch on an angled plane
sketch13 = body.newObject("Sketcher::SketchObject", "Sketch012")
sketch13.Placement = App.Placement(App.Vector(-25.088449, 0, -40.955579), App.Rotation(App.Vector(-0.852725134, 0, 0.522359882), App.Vector(0, 1, 0), App.Vector(-0.522359882, 0, -0.852725134), "ZXY"))
sketch13.addGeometry(Part.Circle(App.Vector(4, 27, 0), App.Vector(0, 0, 1), 8), False)
sketch13.addConstraint([
    Sketcher.Constraint("Diameter", 0, Q("16 mm")),
    Sketcher.Constraint("DistanceY", -1, 1, 0, 3, Q("27 mm")),
    Sketcher.Constraint("DistanceX", -1, 1, 0, 3, Q("4.464611 mm")),
])
pocket9 = body.newObject("PartDesign::Pocket", "Pocket008")
pocket9.Profile = sketch13
pocket9.Type = "UpToFirst"

# Sketch on an angled plane
sketch14 = body.newObject("Sketcher::SketchObject", "Sketch013")
sketch14.Placement = App.Placement(App.Vector(25.088449, 0, -40.955579), App.Rotation(App.Vector(-0.852725134, 0, -0.522359882), App.Vector(0, 1, 0), App.Vector(0.522359882, 0, -0.852725134), "ZXY"))
sketch14.addGeometry(Part.Circle(App.Vector(-4, 27, 0), App.Vector(0, 0, 1), 8), False)
sketch14.addConstraint([
    Sketcher.Constraint("Diameter", 0, Q("16 mm")),
    Sketcher.Constraint("DistanceY", -1, 1, 0, 3, Q("27 mm")),
    Sketcher.Constraint("DistanceX", 0, 3, -1, 1, Q("4.464611 mm")),
])
pocket10 = body.newObject("PartDesign::Pocket", "Pocket009")
pocket10.Profile = sketch14
pocket10.Type = "UpToFirst"

# Sketch on XY plane
sketch15 = body.newObject("Sketcher::SketchObject", "Sketch014")
sketch15.AttachmentSupport = (doc.getObject("XY_Plane"), [""])
sketch15.MapMode = "FlatFace"
sketch15.AttachmentOffset = App.Placement(App.Vector(0, 0, 36.5), App.Rotation())
sketch15.addGeometry(Part.Circle(App.Vector(-38, 27, 0), App.Vector(0, 0, 1), 8), False)  # 0
add_polygon(sketch15, [(32, 19), (32, 6), (16, 6), (16, 19)])  # lines 1-4
sketch15.addConstraint([
    Sketcher.Constraint("Vertical", 1),
    Sketcher.Constraint("Horizontal", 2),
    Sketcher.Constraint("Vertical", 3),
    Sketcher.Constraint("Horizontal", 4),
    Sketcher.Constraint("Diameter", 0, Q("16 mm")),
    Sketcher.Constraint("DistanceX", 2, 2, 2, 1, Q("16 mm")),
    Sketcher.Constraint("DistanceY", 1, 2, 1, 1, Q("13 mm")),
    Sketcher.Constraint("DistanceX", 0, 3, -1, 1, Q("38 mm")),
    Sketcher.Constraint("DistanceY", -1, 1, 0, 3, Q("27 mm")),
    Sketcher.Constraint("DistanceX", -1, 1, 1, 2, Q("32 mm")),
    Sketcher.Constraint("DistanceY", -1, 1, 1, 2, Q("6 mm")),
])
pocket11 = body.newObject("PartDesign::Pocket", "Pocket010")
pocket11.Profile = sketch15
pocket11.Length = 3
pocket11.Reversed = True

# Sketch on XY plane
sketch16 = body.newObject("Sketcher::SketchObject", "Sketch015")
sketch16.AttachmentSupport = (doc.getObject("XY_Plane"), [""])
sketch16.MapMode = "FlatFace"
sketch16.AttachmentOffset = App.Placement(App.Vector(0, 0, 36.5), App.Rotation())
add_polygon(sketch16, [(-8, 19), (-8, 6), (-24, 6), (-24, 19)])  # lines 0-3
sketch16.addConstraint([
    Sketcher.Constraint("Vertical", 0),
    Sketcher.Constraint("Horizontal", 1),
    Sketcher.Constraint("Vertical", 2),
    Sketcher.Constraint("Horizontal", 3),
    Sketcher.Constraint("DistanceX", 1, 2, 1, 1, Q("16 mm")),
    Sketcher.Constraint("DistanceY", 0, 2, 0, 1, Q("13 mm")),
    Sketcher.Constraint("DistanceX", 0, 2, -1, 1, Q("8 mm")),
    Sketcher.Constraint("DistanceY", -1, 1, 0, 2, Q("6 mm")),
])
pocket12 = body.newObject("PartDesign::Pocket", "Pocket011")
pocket12.Profile = sketch16
pocket12.Type = "ThroughAll"
pocket12.Reversed = True

doc.recompute()
